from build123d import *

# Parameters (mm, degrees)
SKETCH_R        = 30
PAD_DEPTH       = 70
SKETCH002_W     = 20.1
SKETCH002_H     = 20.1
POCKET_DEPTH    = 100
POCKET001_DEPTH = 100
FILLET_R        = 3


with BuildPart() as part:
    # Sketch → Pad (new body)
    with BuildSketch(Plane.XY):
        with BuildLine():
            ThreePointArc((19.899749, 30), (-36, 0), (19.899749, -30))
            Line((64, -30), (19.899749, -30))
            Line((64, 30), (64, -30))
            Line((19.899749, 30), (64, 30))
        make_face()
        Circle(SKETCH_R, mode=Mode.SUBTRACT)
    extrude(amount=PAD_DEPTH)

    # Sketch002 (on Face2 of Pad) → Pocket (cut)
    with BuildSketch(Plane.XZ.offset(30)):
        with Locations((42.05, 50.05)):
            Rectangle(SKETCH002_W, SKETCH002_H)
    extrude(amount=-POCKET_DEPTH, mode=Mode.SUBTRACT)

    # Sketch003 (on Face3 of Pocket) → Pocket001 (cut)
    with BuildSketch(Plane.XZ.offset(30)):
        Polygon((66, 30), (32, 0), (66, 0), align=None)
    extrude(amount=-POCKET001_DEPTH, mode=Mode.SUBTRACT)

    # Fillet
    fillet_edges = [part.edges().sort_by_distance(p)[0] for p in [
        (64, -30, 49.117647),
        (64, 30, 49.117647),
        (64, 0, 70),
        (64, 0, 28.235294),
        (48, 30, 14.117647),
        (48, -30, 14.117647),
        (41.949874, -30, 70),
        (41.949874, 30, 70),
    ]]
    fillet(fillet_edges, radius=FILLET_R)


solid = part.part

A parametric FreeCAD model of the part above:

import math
import FreeCAD as App
import Part
import Sketcher
Q = App.Units.Quantity


def edges_at(feature, points):
    """Names of the edges that pass closest to the given points."""
    edges = feature.Shape.Edges
    near = lambda p: min(range(len(edges)), key=lambda i: edges[i].distToShape(Part.Vertex(*p))[0])
    return sorted({f"Edge{near(p) + 1}" for p in points})


def add_polygon(sketch, points):
    """Adds a closed chain of lines whose ends are joined by coincident constraints."""
    first, n = sketch.GeometryCount, len(points)
    for a, b in zip(points, points[1:] + points[:1]):
        sketch.addGeometry(Part.LineSegment(App.Vector(*a, 0), App.Vector(*b, 0)), False)
    for i in range(n):
        sketch.addConstraint(Sketcher.Constraint("Coincident", first + i, 2, first + (i + 1) % n, 1))

doc = App.newDocument("Part")
params = doc.addObject("Spreadsheet::Sheet", "Params")
for row, (alias, value) in enumerate([
    ("sketch1_diameter", "60 mm"),
    ("sketch1_radius", "36 mm"),
    ("sketch1_height", "60 mm"),
    ("pad1_length", "70 mm"),
    ("sketch2_width", "20.1 mm"),
    ("pocket1_length", "100 mm"),
    ("sketch3_width", "34 mm"),
    ("sketch3_height", "30 mm"),
    ("pocket2_length", "100 mm"),
    ("fillet_radius", "3 mm"),
], start=1):
    params.set(f"A{row}", alias)
    params.set(f"B{row}", "=" + value)
    params.setAlias(f"B{row}", alias)

body = doc.addObject("PartDesign::Body", "Body")

sketch1 = doc.addObject("Sketcher::SketchObject", "Sketch")
body.addObject(sketch1)
sketch1.AttachmentSupport = (doc.XY_Plane, [""])
sketch1.MapMode = "FlatFace"
sketch1.addGeometry(Part.ArcOfCircle(Part.Circle(App.Vector(0, 0, 0), App.Vector(0, 0, 1), 36), math.radians(56), math.radians(304)), False)
sketch1.addGeometry(Part.LineSegment(App.Vector(20, -30, 0), App.Vector(64, -30, 0)), False)
sketch1.addGeometry(Part.LineSegment(App.Vector(64, -30, 0), App.Vector(64, 30, 0)), False)
sketch1.addGeometry(Part.LineSegment(App.Vector(64, 30, 0), App.Vector(20, 30, 0)), False)
sketch1.addGeometry(Part.Circle(App.Vector(0, 0, 0), App.Vector(0, 0, 1), 30), False)
sketch1.addConstraint(Sketcher.Constraint("Coincident", 0, 2, 1, 1))
sketch1.addConstraint(Sketcher.Constraint("Coincident", 1, 2, 2, 1))
sketch1.addConstraint(Sketcher.Constraint("Coincident", 2, 2, 3, 1))
sketch1.addConstraint(Sketcher.Constraint("Coincident", 3, 2, 0, 1))
sketch1.addConstraint(Sketcher.Constraint("Horizontal", 1))
sketch1.addConstraint(Sketcher.Constraint("Vertical", 2))
sketch1.addConstraint(Sketcher.Constraint("Horizontal", 3))
sketch1.addConstraint(Sketcher.Constraint("Coincident", 0, 3, -1, 1))
sketch1.addConstraint(Sketcher.Constraint("Coincident", 4, 3, -1, 1))
sketch1.addConstraint(Sketcher.Constraint("Vertical", 0, 2, 3, 2))
sketch1.addConstraint(Sketcher.Constraint("Diameter", 4, Q("60 mm")))
sketch1.addConstraint(Sketcher.Constraint("Radius", 0, Q("36 mm")))
sketch1.addConstraint(Sketcher.Constraint("DistanceY", 2, 1, 2, 2, Q("60 mm")))
sketch1.addConstraint(Sketcher.Constraint("DistanceX", -1, 1, 1, 2, Q("64 mm")))
sketch1.setExpression("Constraints[10]", "Params.sketch1_diameter")
sketch1.setExpression("Constraints[11]", "Params.sketch1_radius")
sketch1.setExpression("Constraints[12]", "Params.sketch1_height")
pad1 = doc.addObject("PartDesign::Pad", "Pad")
body.addObject(pad1)
pad1.Profile = sketch1
pad1.setExpression("Length", "Params.pad1_length")

sketch2 = doc.addObject("Sketcher::SketchObject", "Sketch001")
body.addObject(sketch2)
sketch2.AttachmentSupport = (doc.XZ_Plane, [""])
sketch2.MapMode = "FlatFace"
sketch2.AttachmentOffset = App.Placement(App.Vector(0, 0, 30), App.Rotation())
add_polygon(sketch2, [(32, 60), (32, 40), (52, 40), (52, 60)])
sketch2.addConstraint(Sketcher.Constraint("Vertical", 0))
sketch2.addConstraint(Sketcher.Constraint("Horizontal", 1))
sketch2.addConstraint(Sketcher.Constraint("Vertical", 2))
sketch2.addConstraint(Sketcher.Constraint("Horizontal", 3))
sketch2.addConstraint(Sketcher.Constraint("Equal", 3, 0))
sketch2.addConstraint(Sketcher.Constraint("DistanceX", 1, 1, 1, 2, Q("20.1 mm")))
sketch2.addConstraint(Sketcher.Constraint("DistanceX", -1, 1, 0, 2, Q("32 mm")))
sketch2.addConstraint(Sketcher.Constraint("DistanceY", -1, 1, 0, 2, Q("40 mm")))
sketch2.setExpression("Constraints[9]", "Params.sketch2_width")
pocket1 = doc.addObject("PartDesign::Pocket", "Pocket")
body.addObject(pocket1)
pocket1.Profile = sketch2
pocket1.setExpression("Length", "Params.pocket1_length")

sketch3 = doc.addObject("Sketcher::SketchObject", "Sketch002")
body.addObject(sketch3)
sketch3.AttachmentSupport = (doc.XZ_Plane, [""])
sketch3.MapMode = "FlatFace"
sketch3.AttachmentOffset = App.Placement(App.Vector(0, 0, 30), App.Rotation())
add_polygon(sketch3, [(66, 30), (32, 0), (66, 0)])
sketch3.addConstraint(Sketcher.Constraint("Horizontal", 1))
sketch3.addConstraint(Sketcher.Constraint("Vertical", 2))
sketch3.addConstraint(Sketcher.Constraint("PointOnObject", 0, 2, -1))
sketch3.addConstraint(Sketcher.Constraint("DistanceX", 1, 1, 1, 2, Q("34 mm")))
sketch3.addConstraint(Sketcher.Constraint("DistanceY", 2, 1, 2, 2, Q("30 mm")))
sketch3.addConstraint(Sketcher.Constraint("DistanceX", -1, 1, 0, 2, Q("32 mm")))
sketch3.setExpression("Constraints[6]", "Params.sketch3_width")
sketch3.setExpression("Constraints[7]", "Params.sketch3_height")
pocket2 = doc.addObject("PartDesign::Pocket", "Pocket001")
body.addObject(pocket2)
pocket2.Profile = sketch3
pocket2.setExpression("Length", "Params.pocket2_length")
doc.recompute()

fillet = doc.addObject("PartDesign::Fillet", "Fillet")
body.addObject(fillet)
fillet.Base = (pocket2, edges_at(pocket2, [
    (64, -30, 49.118),
    (64, 30, 49.118),
    (64, 0, 70),
    (64, 0, 28.235),
    (48, 30, 14.118),
    (48, -30, 14.118),
    (41.95, -30, 70),
    (41.95, 30, 70),
]))
fillet.setExpression("Radius", "Params.fillet_radius")

doc.recompute()
